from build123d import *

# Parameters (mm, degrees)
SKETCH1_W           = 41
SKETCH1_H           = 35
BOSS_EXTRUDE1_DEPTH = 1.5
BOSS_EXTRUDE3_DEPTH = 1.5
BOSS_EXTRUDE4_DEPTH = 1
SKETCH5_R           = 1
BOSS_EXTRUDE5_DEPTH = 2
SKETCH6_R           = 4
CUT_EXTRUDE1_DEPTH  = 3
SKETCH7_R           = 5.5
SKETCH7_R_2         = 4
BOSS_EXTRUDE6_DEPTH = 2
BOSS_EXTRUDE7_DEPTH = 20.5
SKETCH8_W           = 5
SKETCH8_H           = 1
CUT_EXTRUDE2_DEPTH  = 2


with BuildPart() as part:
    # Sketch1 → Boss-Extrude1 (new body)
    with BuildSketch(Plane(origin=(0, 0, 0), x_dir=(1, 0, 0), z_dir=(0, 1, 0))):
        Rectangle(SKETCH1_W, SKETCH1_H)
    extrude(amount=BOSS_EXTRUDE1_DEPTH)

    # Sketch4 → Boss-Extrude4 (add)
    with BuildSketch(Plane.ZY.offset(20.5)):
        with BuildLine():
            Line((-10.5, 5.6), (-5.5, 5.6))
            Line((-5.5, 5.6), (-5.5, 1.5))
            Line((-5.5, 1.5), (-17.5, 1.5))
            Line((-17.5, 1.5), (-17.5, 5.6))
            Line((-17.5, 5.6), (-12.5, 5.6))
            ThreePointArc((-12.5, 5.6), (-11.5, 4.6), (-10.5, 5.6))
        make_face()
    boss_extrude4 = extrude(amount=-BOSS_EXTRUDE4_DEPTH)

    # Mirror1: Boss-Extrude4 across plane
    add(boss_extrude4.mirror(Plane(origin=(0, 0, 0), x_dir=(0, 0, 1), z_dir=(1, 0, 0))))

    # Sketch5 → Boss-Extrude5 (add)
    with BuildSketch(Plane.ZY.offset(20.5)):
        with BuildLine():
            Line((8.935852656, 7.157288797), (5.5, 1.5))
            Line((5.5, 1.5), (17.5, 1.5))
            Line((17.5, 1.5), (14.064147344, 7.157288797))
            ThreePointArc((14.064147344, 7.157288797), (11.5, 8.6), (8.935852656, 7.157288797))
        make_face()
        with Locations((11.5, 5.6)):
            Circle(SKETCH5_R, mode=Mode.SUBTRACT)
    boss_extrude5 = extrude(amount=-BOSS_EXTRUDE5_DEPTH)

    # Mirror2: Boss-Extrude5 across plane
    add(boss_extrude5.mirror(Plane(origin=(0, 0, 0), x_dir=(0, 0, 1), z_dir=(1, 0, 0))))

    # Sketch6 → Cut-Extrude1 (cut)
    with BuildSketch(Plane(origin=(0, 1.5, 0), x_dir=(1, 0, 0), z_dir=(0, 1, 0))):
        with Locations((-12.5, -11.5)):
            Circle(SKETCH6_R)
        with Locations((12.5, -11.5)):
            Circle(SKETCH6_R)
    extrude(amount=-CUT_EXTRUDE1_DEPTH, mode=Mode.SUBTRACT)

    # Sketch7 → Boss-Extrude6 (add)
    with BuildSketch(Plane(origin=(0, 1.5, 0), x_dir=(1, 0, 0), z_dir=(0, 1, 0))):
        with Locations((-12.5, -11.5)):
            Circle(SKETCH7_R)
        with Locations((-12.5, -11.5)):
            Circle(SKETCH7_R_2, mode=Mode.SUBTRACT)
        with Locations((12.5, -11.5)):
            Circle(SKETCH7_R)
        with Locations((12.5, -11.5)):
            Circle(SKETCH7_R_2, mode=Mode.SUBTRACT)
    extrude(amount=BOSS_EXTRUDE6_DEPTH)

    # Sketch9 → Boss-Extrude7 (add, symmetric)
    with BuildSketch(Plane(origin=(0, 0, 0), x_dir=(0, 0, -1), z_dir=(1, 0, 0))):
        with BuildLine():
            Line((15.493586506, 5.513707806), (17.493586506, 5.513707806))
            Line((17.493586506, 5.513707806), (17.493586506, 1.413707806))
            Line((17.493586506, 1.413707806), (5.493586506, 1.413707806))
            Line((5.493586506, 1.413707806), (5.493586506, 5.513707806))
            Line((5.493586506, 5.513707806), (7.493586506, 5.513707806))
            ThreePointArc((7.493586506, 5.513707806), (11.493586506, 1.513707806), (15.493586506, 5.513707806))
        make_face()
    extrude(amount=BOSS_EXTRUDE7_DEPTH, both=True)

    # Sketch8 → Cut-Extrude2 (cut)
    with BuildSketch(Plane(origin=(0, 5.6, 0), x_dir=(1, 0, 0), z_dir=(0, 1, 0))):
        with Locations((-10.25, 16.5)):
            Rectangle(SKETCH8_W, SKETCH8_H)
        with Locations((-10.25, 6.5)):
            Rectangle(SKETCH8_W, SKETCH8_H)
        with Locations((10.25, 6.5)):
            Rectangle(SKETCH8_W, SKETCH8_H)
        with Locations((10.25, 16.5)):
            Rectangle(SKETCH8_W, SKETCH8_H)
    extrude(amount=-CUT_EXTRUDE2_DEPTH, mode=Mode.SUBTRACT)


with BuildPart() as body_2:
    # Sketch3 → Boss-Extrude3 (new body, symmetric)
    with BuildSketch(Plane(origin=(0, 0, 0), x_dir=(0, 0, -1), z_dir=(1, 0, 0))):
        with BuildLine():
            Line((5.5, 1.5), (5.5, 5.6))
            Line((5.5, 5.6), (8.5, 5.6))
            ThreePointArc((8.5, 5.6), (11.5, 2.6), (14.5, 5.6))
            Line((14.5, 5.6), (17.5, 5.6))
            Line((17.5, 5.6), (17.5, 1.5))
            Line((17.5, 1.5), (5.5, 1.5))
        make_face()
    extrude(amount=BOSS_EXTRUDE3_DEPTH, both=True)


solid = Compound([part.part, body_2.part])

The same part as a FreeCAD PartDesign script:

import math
import FreeCAD as App
import Part
import Sketcher

V = App.Vector
Q = App.Units.Quantity

doc = App.newDocument("Part")
body = doc.addObject("PartDesign::Body", "Body")

sketch1 = body.newObject("Sketcher::SketchObject", "Sketch")
sketch1.AttachmentSupport = (doc.getObject("XZ_Plane"), [""])
sketch1.MapMode = "FlatFace"
sketch1.addGeometry([
    Part.LineSegment(V(-20, -18, 0), V(-20, 18, 0)),
    Part.LineSegment(V(-20, 18, 0), V(20, 18, 0)),
    Part.LineSegment(V(20, 18, 0), V(20, -18, 0)),
    Part.LineSegment(V(20, -18, 0), V(-20, -18, 0)),
], False)
sketch1.addConstraint([
    Sketcher.Constraint("Coincident", 0, 2, 1, 1),
    Sketcher.Constraint("Coincident", 1, 2, 2, 1),
    Sketcher.Constraint("Coincident", 2, 2, 3, 1),
    Sketcher.Constraint("Coincident", 3, 2, 0, 1),
    Sketcher.Constraint("Vertical", 0),
    Sketcher.Constraint("Horizontal", 1),
    Sketcher.Constraint("Vertical", 2),
    Sketcher.Constraint("Horizontal", 3),
    Sketcher.Constraint("Symmetric", 0, 2, 2, 2, -1, 1),
    Sketcher.Constraint("DistanceX", 1, 1, 1, 2, Q("41 mm")),
    Sketcher.Constraint("DistanceY", 0, 1, 0, 2, Q("35 mm")),
])
pad1 = body.newObject("PartDesign::Pad", "Pad")
pad1.Profile = sketch1
pad1.Length = 1.5
pad1.Reversed = True

sketch2 = body.newObject("Sketcher::SketchObject", "Sketch001")
sketch2.AttachmentSupport = (doc.getObject("YZ_Plane"), [""])
sketch2.MapMode = "FlatFace"
sketch2.AttachmentOffset = App.Placement(V(0, 0, -20.5), App.Rotation())
sketch2.addGeometry([
    Part.LineSegment(V(5.6, -5.5, 0), V(5.6, -10.5, 0)),
    Part.ArcOfCircle(Part.Circle(V(5.6, -11.5, 0), V(0, 0, 1), 1), math.radians(90), math.radians(270)),
    Part.LineSegment(V(5.6, -12.5, 0), V(5.6, -17.5, 0)),
    Part.LineSegment(V(5.6, -17.5, 0), V(1.5, -17.5, 0)),
    Part.LineSegment(V(1.5, -17.5, 0), V(1.5, -5.5, 0)),
    Part.LineSegment(V(1.5, -5.5, 0), V(5.6, -5.5, 0)),
], False)
sketch2.addConstraint([
    Sketcher.Constraint("Coincident", 0, 2, 1, 1),
    Sketcher.Constraint("Coincident", 1, 2, 2, 1),
    Sketcher.Constraint("Coincident", 2, 2, 3, 1),
    Sketcher.Constraint("Coincident", 3, 2, 4, 1),
    Sketcher.Constraint("Coincident", 4, 2, 5, 1),
    Sketcher.Constraint("Coincident", 5, 2, 0, 1),
    Sketcher.Constraint("Vertical", 0),
    Sketcher.Constraint("Vertical", 2),
    Sketcher.Constraint("Horizontal", 3),
    Sketcher.Constraint("Vertical", 4),
    Sketcher.Constraint("Horizontal", 5),
    Sketcher.Constraint("Vertical", 1, 3, 0, 2),
    Sketcher.Constraint("Vertical", 0, 2, 1, 2),
    Sketcher.Constraint("Equal", 0, 2),
    Sketcher.Constraint("Radius", 1, Q("1 mm")),
    Sketcher.Constraint("DistanceY", 0, 2, 0, 1, Q("5 mm")),
    Sketcher.Constraint("DistanceX", 3, 2, 3, 1, Q("4.1 mm")),
    Sketcher.Constraint("DistanceX", -1, 1, 1, 3, Q("5.6 mm")),
    Sketcher.Constraint("DistanceY", 1, 3, -1, 1, Q("11.5 mm")),
])
pad2 = body.newObject("PartDesign::Pad", "Pad001")
pad2.Profile = sketch2
pad2.Length = 1
doc.recompute()

mirrored = body.newObject("PartDesign::Mirrored", "Mirrored")
mirrored.Originals = [pad2]
mirrored.MirrorPlane = (doc.getObject("YZ_Plane"), [""])
body.Tip = mirrored

sketch3 = body.newObject("Sketcher::SketchObject", "Sketch002")
sketch3.AttachmentSupport = (doc.getObject("YZ_Plane"), [""])
sketch3.MapMode = "FlatFace"
sketch3.AttachmentOffset = App.Placement(V(0, 0, -20.5), App.Rotation())
sketch3.addGeometry([
    Part.LineSegment(V(7.2, 8.9, 0), V(1.5, 5.5, 0)),
    Part.LineSegment(V(1.5, 5.5, 0), V(1.5, 17.5, 0)),
    Part.LineSegment(V(1.5, 17.5, 0), V(7.2, 14.1, 0)),
    Part.ArcOfCircle(Part.Circle(V(5.6, 11.5, 0), V(0, 0, 1), 3), math.radians(-59), math.radians(59)),
    Part.Circle(V(5.6, 11.5, 0), V(0, 0, 1), 1),
], False)
sketch3.addConstraint([
    Sketcher.Constraint("Coincident", 0, 2, 1, 1),
    Sketcher.Constraint("Coincident", 1, 2, 2, 1),
    Sketcher.Constraint("Tangent", 2, 2, 3, 2),
    Sketcher.Constraint("Tangent", 3, 1, 0, 1),
    Sketcher.Constraint("Vertical", 1),
    Sketcher.Constraint("Coincident", 4, 3, 3, 3),
    Sketcher.Constraint("Vertical", 2, 2, 3, 1),
    Sketcher.Constraint("Diameter", 4, Q("2 mm")),
    Sketcher.Constraint("Radius", 3, Q("3 mm")),
    Sketcher.Constraint("DistanceY", 1, 1, 1, 2, Q("12 mm")),
    Sketcher.Constraint("DistanceX", -1, 1, 3, 3, Q("5.6 mm")),
    Sketcher.Constraint("DistanceY", -1, 1, 3, 3, Q("11.5 mm")),
    Sketcher.Constraint("DistanceX", -1, 1, 0, 2, Q("1.5 mm")),
])
pad3 = body.newObject("PartDesign::Pad", "Pad002")
pad3.Profile = sketch3
pad3.Length = 2
doc.recompute()

mirrored2 = body.newObject("PartDesign::Mirrored", "Mirrored001")
mirrored2.Originals = [pad3]
mirrored2.MirrorPlane = (doc.getObject("YZ_Plane"), [""])
body.Tip = mirrored2

sketch4 = body.newObject("Sketcher::SketchObject", "Sketch003")
sketch4.AttachmentSupport = (doc.getObject("XZ_Plane"), [""])
sketch4.MapMode = "FlatFace"
sketch4.AttachmentOffset = App.Placement(V(0, 0, -1.5), App.Rotation())
sketch4.addGeometry([
    Part.Circle(V(-12.5, 11.5, 0), V(0, 0, 1), 4),
    Part.Circle(V(12.5, 11.5, 0), V(0, 0, 1), 4),
], False)
sketch4.addConstraint([
    Sketcher.Constraint("Equal", 0, 1),
    Sketcher.Constraint("Symmetric", 0, 3, 1, 3, -2),
    Sketcher.Constraint("Diameter", 0, Q("8 mm")),
    Sketcher.Constraint("DistanceX", 0, 3, 1, 3, Q("25 mm")),
    Sketcher.Constraint("DistanceY", -1, 1, 0, 3, Q("11.5 mm")),
])
pocket1 = body.newObject("PartDesign::Pocket", "Pocket")
pocket1.Profile = sketch4
pocket1.Length = 3
pocket1.Reversed = True

sketch5 = body.newObject("Sketcher::SketchObject", "Sketch004")
sketch5.AttachmentSupport = (doc.getObject("XZ_Plane"), [""])
sketch5.MapMode = "FlatFace"
sketch5.AttachmentOffset = App.Placement(V(0, 0, -1.5), App.Rotation())
sketch5.addGeometry([
    Part.Circle(V(-12.5, 11.5, 0), V(0, 0, 1), 5.5),
    Part.Circle(V(-12.5, 11.5, 0), V(0, 0, 1), 4),
    Part.Circle(V(12.5, 11.5, 0), V(0, 0, 1), 5.5),
    Part.Circle(V(12.5, 11.5, 0), V(0, 0, 1), 4),
], False)
sketch5.addConstraint([
    Sketcher.Constraint("Coincident", 1, 3, 0, 3),
    Sketcher.Constraint("Coincident", 3, 3, 2, 3),
    Sketcher.Constraint("Equal", 0, 2),
    Sketcher.Constraint("Equal", 1, 3),
    Sketcher.Constraint("Symmetric", 0, 3, 2, 3, -2),
    Sketcher.Constraint("Diameter", 0, Q("11 mm")),
    Sketcher.Constraint("Diameter", 1, Q("8 mm")),
    Sketcher.Constraint("DistanceX", 0, 3, 2, 3, Q("25 mm")),
    Sketcher.Constraint("DistanceY", -1, 1, 0, 3, Q("11.5 mm")),
])
pad4 = body.newObject("PartDesign::Pad", "Pad003")
pad4.Profile = sketch5
pad4.Length = 2
pad4.Reversed = True

sketch6 = body.newObject("Sketcher::SketchObject", "Sketch005")
sketch6.AttachmentSupport = (doc.getObject("YZ_Plane"), [""])
sketch6.MapMode = "FlatFace"
sketch6.addGeometry([
    Part.LineSegment(V(5.5, -17.5, 0), V(5.5, -15.5, 0)),
    Part.ArcOfCircle(Part.Circle(V(5.5, -11.5, 0), V(0, 0, 1), 4), math.radians(90), math.radians(270)),
    Part.LineSegment(V(5.5, -7.5, 0), V(5.5, -5.5, 0)),
    Part.LineSegment(V(5.5, -5.5, 0), V(1.4, -5.5, 0)),
    Part.LineSegment(V(1.4, -5.5, 0), V(1.4, -17.5, 0)),
    Part.LineSegment(V(1.4, -17.5, 0), V(5.5, -17.5, 0)),
], False)
sketch6.addConstraint([
    Sketcher.Constraint("Coincident", 0, 2, 1, 2),
    Sketcher.Constraint("Coincident", 1, 1, 2, 1),
    Sketcher.Constraint("Coincident", 2, 2, 3, 1),
    Sketcher.Constraint("Coincident", 3, 2, 4, 1),
    Sketcher.Constraint("Coincident", 4, 2, 5, 1),
    Sketcher.Constraint("Coincident", 5, 2, 0, 1),
    Sketcher.Constraint("Vertical", 0),
    Sketcher.Constraint("Vertical", 2),
    Sketcher.Constraint("Horizontal", 3),
    Sketcher.Constraint("Vertical", 4),
    Sketcher.Constraint("Horizontal", 5),
    Sketcher.Constraint("Vertical", 1, 3, 0, 2),
    Sketcher.Constraint("Vertical", 0, 2, 1, 1),
    Sketcher.Constraint("Equal", 0, 2),
    Sketcher.Constraint("Radius", 1, Q("4 mm")),
    Sketcher.Constraint("DistanceY", 0, 1, 0, 2, Q("2 mm")),
    Sketcher.Constraint("DistanceX", 3, 2, 3, 1, Q("4.1 mm")),
    Sketcher.Constraint("DistanceX", -1, 1, 1, 3, Q("5.513708 mm")),
    Sketcher.Constraint("DistanceY", 1, 3, -1, 1, Q("11.493587 mm")),
])
pad5 = body.newObject("PartDesign::Pad", "Pad004")
pad5.Profile = sketch6
pad5.Length = 41
pad5.Midplane = True

sketch7 = body.newObject("Sketcher::SketchObject", "Sketch006")
sketch7.AttachmentSupport = (doc.getObject("XZ_Plane"), [""])
sketch7.MapMode = "FlatFace"
sketch7.AttachmentOffset = App.Placement(V(0, 0, -5.6), App.Rotation())
sketch7.addGeometry([
    Part.LineSegment(V(-12.8, -17, 0), V(-12.8, -16, 0)),
    Part.LineSegment(V(-12.8, -16, 0), V(-7.8, -16, 0)),
    Part.LineSegment(V(-7.8, -16, 0), V(-7.8, -17, 0)),
    Part.LineSegment(V(-7.8, -17, 0), V(-12.8, -17, 0)),
    Part.LineSegment(V(-12.8, -7, 0), V(-12.8, -6, 0)),
    Part.LineSegment(V(-12.8, -6, 0), V(-7.8, -6, 0)),
    Part.LineSegment(V(-7.8, -6, 0), V(-7.8, -7, 0)),
    Part.LineSegment(V(-7.8, -7, 0), V(-12.8, -7, 0)),
    Part.LineSegment(V(7.8, -7, 0), V(7.8, -6, 0)),
    Part.LineSegment(V(7.8, -6, 0), V(12.8, -6, 0)),
    Part.LineSegment(V(12.8, -6, 0), V(12.8, -7, 0)),
    Part.LineSegment(V(12.8, -7, 0), V(7.8, -7, 0)),
    Part.LineSegment(V(7.8, -17, 0), V(7.8, -16, 0)),
    Part.LineSegment(V(7.8, -16, 0), V(12.8, -16, 0)),
    Part.LineSegment(V(12.8, -16, 0), V(12.8, -17, 0)),
    Part.LineSegment(V(12.8, -17, 0), V(7.8, -17, 0)),
], False)
sketch7.addConstraint([
    Sketcher.Constraint("Coincident", 0, 2, 1, 1),
    Sketcher.Constraint("Coincident", 1, 2, 2, 1),
    Sketcher.Constraint("Coincident", 2, 2, 3, 1),
    Sketcher.Constraint("Coincident", 3, 2, 0, 1),
    Sketcher.Constraint("Coincident", 4, 2, 5, 1),
    Sketcher.Constraint("Coincident", 5, 2, 6, 1),
    Sketcher.Constraint("Coincident", 6, 2, 7, 1),
    Sketcher.Constraint("Coincident", 7, 2, 4, 1),
    Sketcher.Constraint("Coincident", 8, 2, 9, 1),
    Sketcher.Constraint("Coincident", 9, 2, 10, 1),
    Sketcher.Constraint("Coincident", 10, 2, 11, 1),
    Sketcher.Constraint("Coincident", 11, 2, 8, 1),
    Sketcher.Constraint("Coincident", 12, 2, 13, 1),
    Sketcher.Constraint("Coincident", 13, 2, 14, 1),
    Sketcher.Constraint("Coincident", 14, 2, 15, 1),
    Sketcher.Constraint("Coincident", 15, 2, 12, 1),
    Sketcher.Constraint("Vertical", 0),
    Sketcher.Constraint("Horizontal", 1),
    Sketcher.Constraint("Vertical", 2),
    Sketcher.Constraint("Horizontal", 3),
    Sketcher.Constraint("Vertical", 4),
    Sketcher.Constraint("Horizontal", 5),
    Sketcher.Constraint("Vertical", 6),
    Sketcher.Constraint("Horizontal", 7),
    Sketcher.Constraint("Vertical", 8),
    Sketcher.Constraint("Horizontal", 9),
    Sketcher.Constraint("Vertical", 10),
    Sketcher.Constraint("Horizontal", 11),
    Sketcher.Constraint("Vertical", 12),
    Sketcher.Constraint("Horizontal", 13),
    Sketcher.Constraint("Vertical", 14),
    Sketcher.Constraint("Horizontal", 15),
    Sketcher.Constraint("Symmetric", 5, 2, 8, 2, -2),
    Sketcher.Constraint("Symmetric", 7, 2, 10, 2, -2),
    Sketcher.Constraint("Symmetric", 1, 2, 12, 2, -2),
    Sketcher.Constraint("Symmetric", 3, 2, 14, 2, -2),
    Sketcher.Constraint("Vertical", 3, 2, 4, 2),
    Sketcher.Constraint("Vertical", 2, 2, 5, 2),
    Sketcher.Constraint("Equal", 2, 4),
    Sketcher.Constraint("DistanceX", 1, 1, 1, 2, Q("5 mm")),
    Sketcher.Constraint("DistanceY", 0, 1, 0, 2, Q("1 mm")),
    Sketcher.Constraint("DistanceY", 0, 2, -1, 1, Q("16 mm")),
    Sketcher.Constraint("DistanceY", 4, 2, -1, 1, Q("6 mm")),
    Sketcher.Constraint("DistanceX", 5, 2, 8, 2, Q("15.5 mm")),
])
pocket2 = body.newObject("PartDesign::Pocket", "Pocket001")
pocket2.Profile = sketch7
pocket2.Length = 2
pocket2.Reversed = True
body2 = doc.addObject("PartDesign::Body", "Body001")

sketch8 = body2.newObject("Sketcher::SketchObject", "Sketch007")
sketch8.AttachmentSupport = (doc.getObject("YZ_Plane001"), [""])
sketch8.MapMode = "FlatFace"
sketch8.addGeometry([
    Part.LineSegment(V(5.6, -5.5, 0), V(1.5, -5.5, 0)),
    Part.LineSegment(V(1.5, -5.5, 0), V(1.5, -17.5, 0)),
    Part.LineSegment(V(1.5, -17.5, 0), V(5.6, -17.5, 0)),
    Part.LineSegment(V(5.6, -17.5, 0), V(5.6, -14.5, 0)),
    Part.ArcOfCircle(Part.Circle(V(5.6, -11.5, 0), V(0, 0, 1), 3), math.radians(90), math.radians(270)),
    Part.LineSegment(V(5.6, -8.5, 0), V(5.6, -5.5, 0)),
], False)
sketch8.addConstraint([
    Sketcher.Constraint("Coincident", 0, 2, 1, 1),
    Sketcher.Constraint("Coincident", 1, 2, 2, 1),
    Sketcher.Constraint("Coincident", 2, 2, 3, 1),
    Sketcher.Constraint("Coincident", 3, 2, 4, 2),
    Sketcher.Constraint("Coincident", 4, 1, 5, 1),
    Sketcher.Constraint("Coincident", 5, 2, 0, 1),
    Sketcher.Constraint("Horizontal", 0),
    Sketcher.Constraint("Vertical", 1),
    Sketcher.Constraint("Horizontal", 2),
    Sketcher.Constraint("Vertical", 3),
    Sketcher.Constraint("Vertical", 5),
    Sketcher.Constraint("Vertical", 4, 3, 2, 2),
    Sketcher.Constraint("Vertical", 3, 2, 4, 1),
    Sketcher.Constraint("Equal", 3, 5),
    Sketcher.Constraint("Radius", 4, Q("3 mm")),
    Sketcher.Constraint("DistanceY", 1, 2, 1, 1, Q("12 mm")),
    Sketcher.Constraint("DistanceX", 0, 2, 0, 1, Q("4.1 mm")),
    Sketcher.Constraint("DistanceX", -1, 1, 4, 3, Q("5.6 mm")),
    Sketcher.Constraint("DistanceY", 4, 3, -1, 1, Q("11.5 mm")),
])
pad6 = body2.newObject("PartDesign::Pad", "Pad005")
pad6.Profile = sketch8
pad6.Length = 3
pad6.Midplane = True

doc.recompute()
